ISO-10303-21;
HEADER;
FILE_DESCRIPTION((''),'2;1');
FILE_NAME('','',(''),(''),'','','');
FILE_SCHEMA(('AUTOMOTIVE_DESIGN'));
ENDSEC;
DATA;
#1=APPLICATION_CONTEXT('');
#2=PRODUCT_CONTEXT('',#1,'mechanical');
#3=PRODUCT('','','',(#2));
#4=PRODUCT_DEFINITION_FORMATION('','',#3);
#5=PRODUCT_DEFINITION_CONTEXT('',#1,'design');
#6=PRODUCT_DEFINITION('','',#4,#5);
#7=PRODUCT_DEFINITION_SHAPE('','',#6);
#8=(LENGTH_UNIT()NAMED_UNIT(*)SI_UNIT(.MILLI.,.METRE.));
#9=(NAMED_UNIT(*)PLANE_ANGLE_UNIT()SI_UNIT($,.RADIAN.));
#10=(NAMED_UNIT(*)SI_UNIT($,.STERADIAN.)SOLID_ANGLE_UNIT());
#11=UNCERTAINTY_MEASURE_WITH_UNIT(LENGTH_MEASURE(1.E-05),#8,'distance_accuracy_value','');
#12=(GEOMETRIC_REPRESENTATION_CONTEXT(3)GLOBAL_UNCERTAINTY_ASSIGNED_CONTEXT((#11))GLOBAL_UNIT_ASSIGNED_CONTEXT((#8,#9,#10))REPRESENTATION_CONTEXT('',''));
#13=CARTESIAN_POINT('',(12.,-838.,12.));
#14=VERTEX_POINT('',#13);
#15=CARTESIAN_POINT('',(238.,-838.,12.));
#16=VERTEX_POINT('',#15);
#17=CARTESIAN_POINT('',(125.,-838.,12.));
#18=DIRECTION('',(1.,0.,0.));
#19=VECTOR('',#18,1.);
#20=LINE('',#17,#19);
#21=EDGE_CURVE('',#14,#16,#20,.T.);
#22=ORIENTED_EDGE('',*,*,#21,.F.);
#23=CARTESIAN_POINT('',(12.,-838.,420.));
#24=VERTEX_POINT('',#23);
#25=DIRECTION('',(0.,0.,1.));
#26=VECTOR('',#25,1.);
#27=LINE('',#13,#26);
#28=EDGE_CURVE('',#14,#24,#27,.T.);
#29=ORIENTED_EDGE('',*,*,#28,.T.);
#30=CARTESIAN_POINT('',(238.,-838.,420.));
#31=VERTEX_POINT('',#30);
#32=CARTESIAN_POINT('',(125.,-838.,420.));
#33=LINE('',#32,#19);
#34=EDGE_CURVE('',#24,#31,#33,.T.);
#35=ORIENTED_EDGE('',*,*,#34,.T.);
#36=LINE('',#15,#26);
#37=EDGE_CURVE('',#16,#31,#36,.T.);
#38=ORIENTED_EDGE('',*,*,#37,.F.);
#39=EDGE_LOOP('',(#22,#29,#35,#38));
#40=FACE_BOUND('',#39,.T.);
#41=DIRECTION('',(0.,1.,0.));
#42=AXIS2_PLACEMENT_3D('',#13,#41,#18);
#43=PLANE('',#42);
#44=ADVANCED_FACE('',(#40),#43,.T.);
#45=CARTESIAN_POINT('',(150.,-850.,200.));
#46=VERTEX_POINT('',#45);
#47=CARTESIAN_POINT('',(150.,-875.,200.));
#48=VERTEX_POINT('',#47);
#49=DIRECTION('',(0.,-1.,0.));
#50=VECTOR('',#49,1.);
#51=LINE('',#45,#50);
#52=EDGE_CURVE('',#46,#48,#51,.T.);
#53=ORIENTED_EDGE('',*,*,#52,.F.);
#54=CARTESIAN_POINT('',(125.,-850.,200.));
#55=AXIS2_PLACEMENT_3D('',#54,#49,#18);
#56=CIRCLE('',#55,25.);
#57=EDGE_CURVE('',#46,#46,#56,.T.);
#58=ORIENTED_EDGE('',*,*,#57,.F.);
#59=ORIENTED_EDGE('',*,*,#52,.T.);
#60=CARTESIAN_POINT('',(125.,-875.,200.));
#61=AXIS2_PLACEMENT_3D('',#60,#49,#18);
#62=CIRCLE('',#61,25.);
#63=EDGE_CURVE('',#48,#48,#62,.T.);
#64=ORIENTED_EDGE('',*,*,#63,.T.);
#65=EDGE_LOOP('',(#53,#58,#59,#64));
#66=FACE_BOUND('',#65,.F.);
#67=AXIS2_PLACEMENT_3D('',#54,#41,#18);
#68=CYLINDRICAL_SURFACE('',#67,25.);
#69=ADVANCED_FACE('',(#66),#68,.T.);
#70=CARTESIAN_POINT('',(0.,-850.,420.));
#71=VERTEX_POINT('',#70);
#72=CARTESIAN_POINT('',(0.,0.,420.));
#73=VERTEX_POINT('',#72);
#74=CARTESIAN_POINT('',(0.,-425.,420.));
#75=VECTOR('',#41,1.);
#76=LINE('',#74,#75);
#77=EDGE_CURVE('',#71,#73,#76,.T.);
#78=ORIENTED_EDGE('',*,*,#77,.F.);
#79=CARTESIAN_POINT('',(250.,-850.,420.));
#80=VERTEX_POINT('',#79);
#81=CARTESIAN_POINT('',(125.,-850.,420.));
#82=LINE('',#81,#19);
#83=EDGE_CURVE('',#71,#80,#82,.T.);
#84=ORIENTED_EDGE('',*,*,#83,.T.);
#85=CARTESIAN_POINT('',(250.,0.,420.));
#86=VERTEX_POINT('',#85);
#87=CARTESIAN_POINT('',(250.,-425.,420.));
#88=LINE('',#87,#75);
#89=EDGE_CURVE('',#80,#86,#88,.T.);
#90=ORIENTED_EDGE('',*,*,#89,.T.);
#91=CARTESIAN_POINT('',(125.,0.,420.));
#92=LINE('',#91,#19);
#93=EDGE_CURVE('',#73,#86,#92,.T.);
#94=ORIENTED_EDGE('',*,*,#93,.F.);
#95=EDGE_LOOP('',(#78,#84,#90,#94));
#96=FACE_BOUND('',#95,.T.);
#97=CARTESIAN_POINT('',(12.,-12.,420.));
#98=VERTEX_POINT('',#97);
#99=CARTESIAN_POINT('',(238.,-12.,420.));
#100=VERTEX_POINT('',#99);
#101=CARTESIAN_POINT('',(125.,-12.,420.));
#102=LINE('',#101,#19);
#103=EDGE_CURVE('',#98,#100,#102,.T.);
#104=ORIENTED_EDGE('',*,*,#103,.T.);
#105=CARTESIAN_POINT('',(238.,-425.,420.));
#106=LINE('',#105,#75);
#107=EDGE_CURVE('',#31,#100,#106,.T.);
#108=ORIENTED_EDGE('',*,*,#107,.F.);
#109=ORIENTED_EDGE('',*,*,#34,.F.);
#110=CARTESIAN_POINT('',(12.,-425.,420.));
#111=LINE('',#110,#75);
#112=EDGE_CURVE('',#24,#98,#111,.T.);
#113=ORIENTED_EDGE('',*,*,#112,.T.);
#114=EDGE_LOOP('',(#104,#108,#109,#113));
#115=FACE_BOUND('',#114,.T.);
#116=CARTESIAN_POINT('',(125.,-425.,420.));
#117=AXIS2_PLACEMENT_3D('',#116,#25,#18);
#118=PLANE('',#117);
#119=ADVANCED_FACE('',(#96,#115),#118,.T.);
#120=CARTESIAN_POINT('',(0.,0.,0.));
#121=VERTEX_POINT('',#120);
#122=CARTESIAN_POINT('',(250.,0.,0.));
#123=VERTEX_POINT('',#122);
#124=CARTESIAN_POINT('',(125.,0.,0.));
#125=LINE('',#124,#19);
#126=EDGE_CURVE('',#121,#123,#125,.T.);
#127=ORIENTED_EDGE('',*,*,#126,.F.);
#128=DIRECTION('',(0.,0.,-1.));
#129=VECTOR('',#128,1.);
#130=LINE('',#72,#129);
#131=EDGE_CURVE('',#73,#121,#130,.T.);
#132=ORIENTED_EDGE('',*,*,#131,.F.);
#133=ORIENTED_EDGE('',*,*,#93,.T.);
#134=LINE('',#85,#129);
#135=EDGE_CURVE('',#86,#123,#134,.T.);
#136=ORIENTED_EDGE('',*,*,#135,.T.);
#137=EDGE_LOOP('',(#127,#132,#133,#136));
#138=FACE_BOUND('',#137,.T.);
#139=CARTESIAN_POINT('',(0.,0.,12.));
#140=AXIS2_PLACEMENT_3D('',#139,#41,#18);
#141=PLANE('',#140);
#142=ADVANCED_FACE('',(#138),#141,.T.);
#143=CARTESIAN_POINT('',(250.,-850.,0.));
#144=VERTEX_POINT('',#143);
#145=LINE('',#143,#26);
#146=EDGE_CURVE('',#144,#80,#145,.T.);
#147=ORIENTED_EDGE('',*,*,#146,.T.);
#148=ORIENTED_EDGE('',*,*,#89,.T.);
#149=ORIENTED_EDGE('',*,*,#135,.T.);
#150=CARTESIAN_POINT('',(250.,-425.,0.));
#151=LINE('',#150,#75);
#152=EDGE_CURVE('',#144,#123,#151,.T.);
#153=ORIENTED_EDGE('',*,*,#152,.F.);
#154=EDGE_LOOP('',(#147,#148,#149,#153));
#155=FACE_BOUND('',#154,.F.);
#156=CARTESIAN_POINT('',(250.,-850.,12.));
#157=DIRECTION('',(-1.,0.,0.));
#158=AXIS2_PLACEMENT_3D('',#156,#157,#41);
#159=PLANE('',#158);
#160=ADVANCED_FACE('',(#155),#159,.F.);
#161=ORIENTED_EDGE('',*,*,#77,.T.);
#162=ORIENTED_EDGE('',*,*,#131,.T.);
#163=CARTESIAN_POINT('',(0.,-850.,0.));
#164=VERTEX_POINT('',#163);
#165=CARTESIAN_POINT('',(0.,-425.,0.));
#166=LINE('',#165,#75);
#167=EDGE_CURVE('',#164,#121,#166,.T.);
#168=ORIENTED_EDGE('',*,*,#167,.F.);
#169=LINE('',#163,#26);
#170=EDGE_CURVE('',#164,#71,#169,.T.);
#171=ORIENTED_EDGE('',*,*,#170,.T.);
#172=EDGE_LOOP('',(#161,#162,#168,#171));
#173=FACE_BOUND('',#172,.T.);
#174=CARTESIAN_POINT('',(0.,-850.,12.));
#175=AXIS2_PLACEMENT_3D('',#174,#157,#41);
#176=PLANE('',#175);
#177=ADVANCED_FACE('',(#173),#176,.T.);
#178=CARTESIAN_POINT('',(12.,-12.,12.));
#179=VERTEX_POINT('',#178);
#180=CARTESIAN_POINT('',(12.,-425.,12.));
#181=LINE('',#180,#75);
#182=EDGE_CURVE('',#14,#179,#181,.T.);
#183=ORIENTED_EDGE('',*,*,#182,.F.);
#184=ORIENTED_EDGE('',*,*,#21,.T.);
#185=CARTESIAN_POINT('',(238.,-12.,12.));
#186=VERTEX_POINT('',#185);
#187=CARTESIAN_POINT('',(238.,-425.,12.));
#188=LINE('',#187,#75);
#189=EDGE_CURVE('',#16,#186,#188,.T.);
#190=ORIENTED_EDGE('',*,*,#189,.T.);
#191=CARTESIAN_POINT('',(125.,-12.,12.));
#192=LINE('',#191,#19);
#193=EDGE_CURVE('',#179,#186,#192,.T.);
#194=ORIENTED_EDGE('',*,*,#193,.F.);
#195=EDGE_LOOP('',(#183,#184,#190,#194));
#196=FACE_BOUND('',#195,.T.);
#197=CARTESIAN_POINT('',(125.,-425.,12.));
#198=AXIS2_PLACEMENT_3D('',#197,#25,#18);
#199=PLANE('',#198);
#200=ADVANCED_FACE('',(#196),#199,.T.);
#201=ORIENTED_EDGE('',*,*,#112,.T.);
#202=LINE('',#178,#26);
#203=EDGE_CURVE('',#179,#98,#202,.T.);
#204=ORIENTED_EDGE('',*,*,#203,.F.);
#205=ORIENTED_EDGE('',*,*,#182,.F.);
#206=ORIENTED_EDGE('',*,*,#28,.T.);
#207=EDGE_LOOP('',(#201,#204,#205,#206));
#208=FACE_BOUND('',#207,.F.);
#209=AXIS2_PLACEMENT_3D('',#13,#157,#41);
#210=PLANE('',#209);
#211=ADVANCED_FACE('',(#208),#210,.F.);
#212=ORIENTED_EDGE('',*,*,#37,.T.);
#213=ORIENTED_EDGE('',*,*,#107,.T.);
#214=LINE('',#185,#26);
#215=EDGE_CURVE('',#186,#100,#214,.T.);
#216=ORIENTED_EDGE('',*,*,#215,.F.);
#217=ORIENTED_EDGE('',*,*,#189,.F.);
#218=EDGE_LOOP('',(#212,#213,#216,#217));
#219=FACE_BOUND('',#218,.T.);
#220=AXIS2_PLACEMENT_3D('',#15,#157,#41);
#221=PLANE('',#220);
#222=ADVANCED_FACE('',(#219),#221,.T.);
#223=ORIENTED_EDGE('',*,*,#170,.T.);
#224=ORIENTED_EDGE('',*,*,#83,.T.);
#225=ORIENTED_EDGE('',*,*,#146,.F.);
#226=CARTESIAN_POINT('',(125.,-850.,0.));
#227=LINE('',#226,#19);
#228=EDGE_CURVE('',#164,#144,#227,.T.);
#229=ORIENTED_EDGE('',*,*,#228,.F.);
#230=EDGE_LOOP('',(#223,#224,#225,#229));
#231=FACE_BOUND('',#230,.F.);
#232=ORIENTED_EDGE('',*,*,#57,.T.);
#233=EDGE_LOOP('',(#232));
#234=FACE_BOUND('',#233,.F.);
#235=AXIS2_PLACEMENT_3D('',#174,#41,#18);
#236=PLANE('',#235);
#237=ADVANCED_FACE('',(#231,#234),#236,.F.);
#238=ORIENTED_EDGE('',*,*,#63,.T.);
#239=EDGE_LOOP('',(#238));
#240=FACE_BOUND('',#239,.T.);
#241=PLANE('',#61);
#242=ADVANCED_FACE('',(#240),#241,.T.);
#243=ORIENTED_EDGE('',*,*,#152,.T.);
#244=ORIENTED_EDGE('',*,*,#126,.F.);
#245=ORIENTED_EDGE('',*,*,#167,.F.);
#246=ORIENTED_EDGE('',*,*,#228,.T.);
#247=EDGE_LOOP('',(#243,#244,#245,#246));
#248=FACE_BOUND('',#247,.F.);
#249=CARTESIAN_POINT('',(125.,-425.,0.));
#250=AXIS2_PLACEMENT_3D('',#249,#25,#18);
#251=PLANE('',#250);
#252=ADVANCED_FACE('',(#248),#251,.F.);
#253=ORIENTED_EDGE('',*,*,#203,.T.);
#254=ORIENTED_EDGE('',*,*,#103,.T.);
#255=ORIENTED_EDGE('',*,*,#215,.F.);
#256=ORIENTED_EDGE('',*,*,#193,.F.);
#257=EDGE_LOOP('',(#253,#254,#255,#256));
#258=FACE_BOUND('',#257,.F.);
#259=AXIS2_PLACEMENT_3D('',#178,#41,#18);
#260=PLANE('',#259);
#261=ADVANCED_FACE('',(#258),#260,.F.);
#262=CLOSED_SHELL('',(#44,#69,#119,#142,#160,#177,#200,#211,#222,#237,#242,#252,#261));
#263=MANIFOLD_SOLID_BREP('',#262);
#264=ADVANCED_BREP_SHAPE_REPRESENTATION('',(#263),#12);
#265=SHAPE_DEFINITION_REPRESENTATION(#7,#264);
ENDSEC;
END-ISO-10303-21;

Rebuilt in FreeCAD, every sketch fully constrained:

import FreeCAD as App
import Part
import Sketcher
Q = App.Units.Quantity


def add_polygon(sketch, points):
    """Adds a closed chain of lines whose ends are joined by coincident constraints."""
    first, n = sketch.GeometryCount, len(points)
    for a, b in zip(points, points[1:] + points[:1]):
        sketch.addGeometry(Part.LineSegment(App.Vector(*a, 0), App.Vector(*b, 0)), False)
    for i in range(n):
        sketch.addConstraint(Sketcher.Constraint("Coincident", first + i, 2, first + (i + 1) % n, 1))

doc = App.newDocument("Part")
body = doc.addObject("PartDesign::Body", "Body")

# Sketch on XY plane
sketch1 = body.newObject("Sketcher::SketchObject", "Sketch")
sketch1.AttachmentSupport = (doc.getObject("XY_Plane"), [""])
sketch1.MapMode = "FlatFace"
add_polygon(sketch1, [(0, 0), (0, -850), (250, -850), (250, 0)])  # lines 0-3
sketch1.addConstraint([
    Sketcher.Constraint("Vertical", 0),
    Sketcher.Constraint("Horizontal", 1),
    Sketcher.Constraint("Vertical", 2),
    Sketcher.Constraint("Horizontal", 3),
    Sketcher.Constraint("Coincident", 3, 2, -1, 1),
    Sketcher.Constraint("DistanceX", 1, 1, 1, 2, Q("250 mm")),
    Sketcher.Constraint("DistanceY", 0, 2, 0, 1, Q("850 mm")),
])
pad1 = body.newObject("PartDesign::Pad", "Pad")
pad1.Profile = sketch1
pad1.Length = 12

# Sketch on XY plane
sketch2 = body.newObject("Sketcher::SketchObject", "Sketch001")
sketch2.AttachmentSupport = (doc.getObject("XY_Plane"), [""])
sketch2.MapMode = "FlatFace"
sketch2.AttachmentOffset = App.Placement(App.Vector(0, 0, 12), App.Rotation())
add_polygon(sketch2, [(0, 0), (0, -850), (250, -850), (250, 0)])  # lines 0-3
add_polygon(sketch2, [(238, -838), (12, -838), (12, -12), (238, -12)])  # lines 4-7
sketch2.addConstraint([
    Sketcher.Constraint("Vertical", 0),
    Sketcher.Constraint("Horizontal", 1),
    Sketcher.Constraint("Vertical", 2),
    Sketcher.Constraint("Horizontal", 3),
    Sketcher.Constraint("Horizontal", 4),
    Sketcher.Constraint("Vertical", 5),
    Sketcher.Constraint("Horizontal", 6),
    Sketcher.Constraint("Vertical", 7),
    Sketcher.Constraint("Coincident", 3, 2, -1, 1),
    Sketcher.Constraint("DistanceX", 1, 1, 1, 2, Q("250 mm")),
    Sketcher.Constraint("DistanceX", 4, 2, 4, 1, Q("226 mm")),
    Sketcher.Constraint("DistanceY", 0, 2, 0, 1, Q("850 mm")),
    Sketcher.Constraint("DistanceY", 5, 1, 5, 2, Q("826 mm")),
    Sketcher.Constraint("DistanceX", -1, 1, 4, 2, Q("12 mm")),
    Sketcher.Constraint("DistanceY", 4, 2, -1, 1, Q("838 mm")),
])
pad2 = body.newObject("PartDesign::Pad", "Pad001")
pad2.Profile = sketch2
pad2.Length = 408

# Sketch on XZ plane
sketch3 = body.newObject("Sketcher::SketchObject", "Sketch002")
sketch3.AttachmentSupport = (doc.getObject("XZ_Plane"), [""])
sketch3.MapMode = "FlatFace"
sketch3.AttachmentOffset = App.Placement(App.Vector(0, 0, 850), App.Rotation())
sketch3.addGeometry(Part.Circle(App.Vector(125, 200, 0), App.Vector(0, 0, 1), 25), False)
sketch3.addConstraint([
    Sketcher.Constraint("Diameter", 0, Q("50 mm")),
    Sketcher.Constraint("DistanceX", -1, 1, 0, 3, Q("125 mm")),
    Sketcher.Constraint("DistanceY", -1, 1, 0, 3, Q("200 mm")),
])
pad3 = body.newObject("PartDesign::Pad", "Pad002")
pad3.Profile = sketch3
pad3.Length = 25

doc.recompute()
